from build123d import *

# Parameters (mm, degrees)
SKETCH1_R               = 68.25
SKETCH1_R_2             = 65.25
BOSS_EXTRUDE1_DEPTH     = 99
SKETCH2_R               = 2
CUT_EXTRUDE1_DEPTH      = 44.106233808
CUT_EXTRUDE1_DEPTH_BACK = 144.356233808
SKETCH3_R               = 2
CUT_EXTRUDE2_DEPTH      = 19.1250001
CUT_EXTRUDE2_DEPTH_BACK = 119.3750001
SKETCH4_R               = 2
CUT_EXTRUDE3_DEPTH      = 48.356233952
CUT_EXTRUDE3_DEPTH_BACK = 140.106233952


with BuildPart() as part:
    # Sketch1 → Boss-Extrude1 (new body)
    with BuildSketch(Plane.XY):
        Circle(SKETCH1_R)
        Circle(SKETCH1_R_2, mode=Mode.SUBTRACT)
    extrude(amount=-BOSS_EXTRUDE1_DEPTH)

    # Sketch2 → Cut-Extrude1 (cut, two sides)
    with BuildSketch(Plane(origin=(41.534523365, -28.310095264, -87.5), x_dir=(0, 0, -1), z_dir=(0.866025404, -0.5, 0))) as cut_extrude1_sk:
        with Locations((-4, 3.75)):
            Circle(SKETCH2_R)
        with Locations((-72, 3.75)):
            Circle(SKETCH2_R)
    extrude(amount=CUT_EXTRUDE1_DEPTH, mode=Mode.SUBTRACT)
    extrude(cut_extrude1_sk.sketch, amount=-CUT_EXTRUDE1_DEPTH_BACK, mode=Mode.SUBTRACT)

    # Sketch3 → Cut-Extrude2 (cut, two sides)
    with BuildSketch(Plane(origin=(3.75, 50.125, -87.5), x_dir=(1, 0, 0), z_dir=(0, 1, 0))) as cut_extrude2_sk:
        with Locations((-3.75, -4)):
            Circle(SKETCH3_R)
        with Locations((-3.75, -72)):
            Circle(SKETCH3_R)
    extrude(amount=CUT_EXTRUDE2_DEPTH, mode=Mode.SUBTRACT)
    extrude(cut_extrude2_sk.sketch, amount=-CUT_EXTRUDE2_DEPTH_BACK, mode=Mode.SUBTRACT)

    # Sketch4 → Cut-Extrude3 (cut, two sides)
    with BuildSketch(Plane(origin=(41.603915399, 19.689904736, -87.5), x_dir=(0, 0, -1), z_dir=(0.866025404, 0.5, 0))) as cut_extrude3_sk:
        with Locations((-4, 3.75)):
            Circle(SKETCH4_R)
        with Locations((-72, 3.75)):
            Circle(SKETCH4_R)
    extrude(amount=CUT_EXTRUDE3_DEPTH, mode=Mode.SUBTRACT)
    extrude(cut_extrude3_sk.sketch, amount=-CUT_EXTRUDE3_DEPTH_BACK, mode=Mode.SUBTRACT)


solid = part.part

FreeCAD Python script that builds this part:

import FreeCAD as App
import Part
import Sketcher
from FreeCAD import Vector

doc = App.newDocument("Part")
body = doc.addObject("PartDesign::Body", "Body")

# Sketch on XY plane
sketch1 = doc.addObject("Sketcher::SketchObject", "Sketch")
body.addObject(sketch1)
sketch1.AttachmentSupport = (doc.XY_Plane, [""])
sketch1.MapMode = "FlatFace"
sketch1.addGeometry(Part.Circle(Vector(0, 0, 0), Vector(0, 0, 1), 68), False)
sketch1.addGeometry(Part.Circle(Vector(0, 0, 0), Vector(0, 0, 1), 65), False)
sketch1.addConstraint(Sketcher.Constraint("Coincident", 0, 3, -1, 1))
sketch1.addConstraint(Sketcher.Constraint("Coincident", 1, 3, -1, 1))
sketch1.addConstraint(Sketcher.Constraint("Diameter", 0, 136.5))
sketch1.addConstraint(Sketcher.Constraint("Diameter", 1, 130.5))
pad1 = doc.addObject("PartDesign::Pad", "Pad")
body.addObject(pad1)
pad1.Profile = sketch1
pad1.Length = 99
pad1.Reversed = True

# Sketch on an angled plane
sketch2 = doc.addObject("Sketcher::SketchObject", "Sketch001")
body.addObject(sketch2)
sketch2.Placement = App.Placement(Vector(41.534523, -28.310095, -87.5), App.Rotation(Vector(0, 0, -1), Vector(0.5, 0.866025404, 0), Vector(0.866025404, -0.5, 0), "ZXY"))
sketch2.addGeometry(Part.Circle(Vector(-4, 3.8, 0), Vector(0, 0, 1), 2), False)
sketch2.addGeometry(Part.Circle(Vector(-72, 3.8, 0), Vector(0, 0, 1), 2), False)
sketch2.addConstraint(Sketcher.Constraint("Equal", 0, 1))
sketch2.addConstraint(Sketcher.Constraint("Horizontal", 0, 3, 1, 3))
sketch2.addConstraint(Sketcher.Constraint("Diameter", 0, 4.0))
sketch2.addConstraint(Sketcher.Constraint("DistanceX", 0, 3, -1, 1, 4.0))
sketch2.addConstraint(Sketcher.Constraint("DistanceX", 1, 3, -1, 1, 72.0))
sketch2.addConstraint(Sketcher.Constraint("DistanceY", -1, 1, 0, 3, 3.75))
pocket1 = doc.addObject("PartDesign::Pocket", "Pocket")
body.addObject(pocket1)
pocket1.Profile = sketch2
pocket1.Type = "ThroughAll"
pocket1.Midplane = True

# Sketch on XZ plane
sketch3 = doc.addObject("Sketcher::SketchObject", "Sketch002")
body.addObject(sketch3)
sketch3.AttachmentSupport = (doc.XZ_Plane, [""])
sketch3.MapMode = "FlatFace"
sketch3.AttachmentOffset = App.Placement(Vector(0, 0, -50.125), App.Rotation())
sketch3.addGeometry(Part.Circle(Vector(0, -83.5, 0), Vector(0, 0, 1), 2), False)
sketch3.addGeometry(Part.Circle(Vector(0, -15.5, 0), Vector(0, 0, 1), 2), False)
sketch3.addConstraint(Sketcher.Constraint("Equal", 0, 1))
sketch3.addConstraint(Sketcher.Constraint("PointOnObject", 0, 3, -2))
sketch3.addConstraint(Sketcher.Constraint("PointOnObject", 1, 3, -2))
sketch3.addConstraint(Sketcher.Constraint("Diameter", 0, 4.0))
sketch3.addConstraint(Sketcher.Constraint("DistanceY", 0, 3, 1, 3, 68.0))
sketch3.addConstraint(Sketcher.Constraint("DistanceY", 0, 3, -1, 1, 83.5))
pocket2 = doc.addObject("PartDesign::Pocket", "Pocket001")
body.addObject(pocket2)
pocket2.Profile = sketch3
pocket2.Type = "ThroughAll"
pocket2.Midplane = True

# Sketch on an angled plane
sketch4 = doc.addObject("Sketcher::SketchObject", "Sketch003")
body.addObject(sketch4)
sketch4.Placement = App.Placement(Vector(41.603915, 19.689905, -87.5), App.Rotation(Vector(0, 0, -1), Vector(-0.5, 0.866025404, 0), Vector(0.866025404, 0.5, 0), "ZXY"))
sketch4.addGeometry(Part.Circle(Vector(-4, 3.8, 0), Vector(0, 0, 1), 2), False)
sketch4.addGeometry(Part.Circle(Vector(-72, 3.8, 0), Vector(0, 0, 1), 2), False)
sketch4.addConstraint(Sketcher.Constraint("Equal", 0, 1))
sketch4.addConstraint(Sketcher.Constraint("Horizontal", 0, 3, 1, 3))
sketch4.addConstraint(Sketcher.Constraint("Diameter", 0, 4.0))
sketch4.addConstraint(Sketcher.Constraint("DistanceX", 0, 3, -1, 1, 4.0))
sketch4.addConstraint(Sketcher.Constraint("DistanceX", 1, 3, -1, 1, 72.0))
sketch4.addConstraint(Sketcher.Constraint("DistanceY", -1, 1, 0, 3, 3.75))
pocket3 = doc.addObject("PartDesign::Pocket", "Pocket002")
body.addObject(pocket3)
pocket3.Profile = sketch4
pocket3.Type = "ThroughAll"
pocket3.Midplane = True

doc.recompute()
